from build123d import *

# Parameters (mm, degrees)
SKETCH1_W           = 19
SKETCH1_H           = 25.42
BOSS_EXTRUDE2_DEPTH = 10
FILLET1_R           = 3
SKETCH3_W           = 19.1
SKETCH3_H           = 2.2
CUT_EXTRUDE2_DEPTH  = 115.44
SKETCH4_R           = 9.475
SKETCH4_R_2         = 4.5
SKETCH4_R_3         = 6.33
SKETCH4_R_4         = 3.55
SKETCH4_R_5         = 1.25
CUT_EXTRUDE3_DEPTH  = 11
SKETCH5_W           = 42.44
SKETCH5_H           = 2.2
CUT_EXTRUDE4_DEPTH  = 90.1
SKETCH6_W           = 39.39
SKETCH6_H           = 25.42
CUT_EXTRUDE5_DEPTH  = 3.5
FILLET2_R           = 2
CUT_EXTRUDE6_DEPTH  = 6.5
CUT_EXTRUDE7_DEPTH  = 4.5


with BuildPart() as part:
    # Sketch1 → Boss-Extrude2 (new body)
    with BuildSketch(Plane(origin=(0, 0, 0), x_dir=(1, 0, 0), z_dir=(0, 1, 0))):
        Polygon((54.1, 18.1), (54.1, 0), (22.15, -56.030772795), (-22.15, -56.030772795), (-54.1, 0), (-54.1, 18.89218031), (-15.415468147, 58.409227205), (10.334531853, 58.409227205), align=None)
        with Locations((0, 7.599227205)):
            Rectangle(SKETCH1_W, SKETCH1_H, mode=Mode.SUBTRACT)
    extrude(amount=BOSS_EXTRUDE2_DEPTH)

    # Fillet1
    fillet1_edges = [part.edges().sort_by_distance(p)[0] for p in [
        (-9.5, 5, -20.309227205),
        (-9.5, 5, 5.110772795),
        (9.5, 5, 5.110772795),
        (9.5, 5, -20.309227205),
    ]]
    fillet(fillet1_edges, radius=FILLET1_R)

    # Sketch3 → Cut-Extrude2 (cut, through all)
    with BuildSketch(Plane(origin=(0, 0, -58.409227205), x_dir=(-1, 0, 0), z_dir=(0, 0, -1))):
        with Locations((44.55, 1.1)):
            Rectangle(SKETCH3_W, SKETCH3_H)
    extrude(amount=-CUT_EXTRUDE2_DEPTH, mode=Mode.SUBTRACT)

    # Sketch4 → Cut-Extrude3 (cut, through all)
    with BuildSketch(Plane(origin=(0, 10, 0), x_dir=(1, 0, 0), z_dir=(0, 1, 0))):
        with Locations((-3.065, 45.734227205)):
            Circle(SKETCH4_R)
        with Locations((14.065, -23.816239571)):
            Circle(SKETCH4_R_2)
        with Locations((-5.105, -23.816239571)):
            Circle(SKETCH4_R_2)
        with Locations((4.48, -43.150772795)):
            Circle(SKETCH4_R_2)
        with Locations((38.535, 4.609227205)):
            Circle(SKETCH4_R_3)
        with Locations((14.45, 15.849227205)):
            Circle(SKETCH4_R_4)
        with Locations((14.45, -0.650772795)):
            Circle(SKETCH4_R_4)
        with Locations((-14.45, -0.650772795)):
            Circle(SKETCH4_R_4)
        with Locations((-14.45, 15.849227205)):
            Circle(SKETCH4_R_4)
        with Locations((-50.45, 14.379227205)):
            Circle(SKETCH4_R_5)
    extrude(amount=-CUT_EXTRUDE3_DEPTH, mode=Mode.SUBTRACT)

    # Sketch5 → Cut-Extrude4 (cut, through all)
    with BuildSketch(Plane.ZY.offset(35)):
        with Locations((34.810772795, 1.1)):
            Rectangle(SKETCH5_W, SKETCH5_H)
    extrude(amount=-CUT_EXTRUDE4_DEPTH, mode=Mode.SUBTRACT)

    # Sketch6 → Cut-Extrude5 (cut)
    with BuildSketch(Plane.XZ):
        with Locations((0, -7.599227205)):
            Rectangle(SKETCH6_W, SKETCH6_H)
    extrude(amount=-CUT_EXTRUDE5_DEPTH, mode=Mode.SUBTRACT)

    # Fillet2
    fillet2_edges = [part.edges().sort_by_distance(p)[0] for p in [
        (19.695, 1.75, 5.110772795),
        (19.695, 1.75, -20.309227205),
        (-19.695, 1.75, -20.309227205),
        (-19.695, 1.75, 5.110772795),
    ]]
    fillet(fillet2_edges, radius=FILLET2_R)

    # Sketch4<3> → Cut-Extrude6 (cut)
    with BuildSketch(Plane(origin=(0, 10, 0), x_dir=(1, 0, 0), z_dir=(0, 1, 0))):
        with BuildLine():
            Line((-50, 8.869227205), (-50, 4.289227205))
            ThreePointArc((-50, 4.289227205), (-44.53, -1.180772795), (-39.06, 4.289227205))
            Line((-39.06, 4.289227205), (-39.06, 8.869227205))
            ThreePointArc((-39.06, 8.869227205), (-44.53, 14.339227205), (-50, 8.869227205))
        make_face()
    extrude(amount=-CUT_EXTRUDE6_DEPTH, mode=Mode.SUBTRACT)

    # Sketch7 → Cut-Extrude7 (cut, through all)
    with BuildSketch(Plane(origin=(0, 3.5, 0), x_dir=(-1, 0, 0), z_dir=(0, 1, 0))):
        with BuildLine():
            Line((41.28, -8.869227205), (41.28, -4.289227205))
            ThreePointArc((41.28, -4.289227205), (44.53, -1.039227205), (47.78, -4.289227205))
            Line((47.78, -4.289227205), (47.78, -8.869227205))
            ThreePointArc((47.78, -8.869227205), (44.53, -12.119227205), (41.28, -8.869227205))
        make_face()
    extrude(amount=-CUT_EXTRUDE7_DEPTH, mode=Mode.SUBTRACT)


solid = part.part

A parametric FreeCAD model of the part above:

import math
import FreeCAD as App
import Part
import Sketcher

V = App.Vector
Q = App.Units.Quantity


def edges_at(feature, points):
    """Names of the edges that pass closest to the given points."""
    edges = feature.Shape.Edges
    near = lambda p: min(range(len(edges)), key=lambda i: edges[i].distToShape(Part.Vertex(*p))[0])
    return sorted({f"Edge{near(p) + 1}" for p in points})


def add_polygon(sketch, points):
    """Adds a closed chain of lines whose ends are joined by coincident constraints."""
    first, n = sketch.GeometryCount, len(points)
    for a, b in zip(points, points[1:] + points[:1]):
        sketch.addGeometry(Part.LineSegment(App.Vector(*a, 0), App.Vector(*b, 0)), False)
    for i in range(n):
        sketch.addConstraint(Sketcher.Constraint("Coincident", first + i, 2, first + (i + 1) % n, 1))

doc = App.newDocument("Part")
params = doc.addObject("Spreadsheet::Sheet", "Params")
for row, (alias, value) in enumerate([
    ("sketch1_width", "19 mm"),
    ("sketch1_width2", "44.3 mm"),
    ("sketch1_height", "18.1 mm"),
    ("sketch1_length", "59.5 mm"),
    ("sketch1_length2", "55.3 mm"),
    ("pad1_length", "10 mm"),
    ("fillet_radius", "3 mm"),
    ("sketch2_width", "19.1 mm"),
    ("sketch2_height", "2.2 mm"),
    ("sketch3_diameter", "9 mm"),
    ("sketch3_diameter2", "7.1 mm"),
    ("sketch3_diameter3", "2.5 mm"),
    ("sketch3_diameter4", "18.95 mm"),
    ("sketch3_diameter5", "12.66 mm"),
    ("sketch4_width", "2.2 mm"),
    ("sketch4_height", "42.44 mm"),
    ("sketch5_width", "39.39 mm"),
    ("sketch5_height", "25.42 mm"),
    ("pocket4_length", "3.5 mm"),
    ("fillet2_radius", "2 mm"),
    ("sketch6_radius", "5.47 mm"),
    ("sketch6_height", "4.58 mm"),
    ("pocket5_length", "6.5 mm"),
    ("sketch7_radius", "3.25 mm"),
    ("sketch7_height", "4.58 mm"),
], start=1):
    params.set(f"A{row}", alias)
    params.set(f"B{row}", "=" + value)
    params.setAlias(f"B{row}", alias)

body = doc.addObject("PartDesign::Body", "Body")

# Sketch on XZ plane
sketch1 = doc.addObject("Sketcher::SketchObject", "Sketch")
body.addObject(sketch1)
sketch1.AttachmentSupport = (doc.XZ_Plane, [""])
sketch1.MapMode = "FlatFace"
add_polygon(sketch1, [(54, 0), (54, -18), (10, -58), (-15, -58), (-54, -19), (-54, 0), (-22, 56), (22, 56)])  # lines 0-7
add_polygon(sketch1, [(-10, 5), (-10, -20), (10, -20), (10, 5)])  # lines 8-11
sketch1.addConstraint(Sketcher.Constraint("Vertical", 0))
sketch1.addConstraint(Sketcher.Constraint("Horizontal", 2))
sketch1.addConstraint(Sketcher.Constraint("Vertical", 4))
sketch1.addConstraint(Sketcher.Constraint("Horizontal", 6))
sketch1.addConstraint(Sketcher.Constraint("Vertical", 8))
sketch1.addConstraint(Sketcher.Constraint("Horizontal", 9))
sketch1.addConstraint(Sketcher.Constraint("Vertical", 10))
sketch1.addConstraint(Sketcher.Constraint("Horizontal", 11))
sketch1.addConstraint(Sketcher.Constraint("Symmetric", 4, 2, 7, 2, -1, 1))
sketch1.addConstraint(Sketcher.Constraint("PointOnObject", 4, 2, -1))
sketch1.addConstraint(Sketcher.Constraint("Equal", 5, 7))
sketch1.addConstraint(Sketcher.Constraint("DistanceX", 9, 1, 9, 2, Q("19 mm")))
sketch1.addConstraint(Sketcher.Constraint("DistanceX", 6, 1, 6, 2, Q("44.3 mm")))
sketch1.addConstraint(Sketcher.Constraint("DistanceY", 0, 2, 0, 1, Q("18.1 mm")))
sketch1.addConstraint(Sketcher.Constraint("Distance", 1, Q("59.5 mm")))
sketch1.addConstraint(Sketcher.Constraint("Distance", 3, Q("55.3 mm")))
sketch1.addConstraint(Sketcher.Constraint("Distance", 5, Q("64.5 mm")))
sketch1.addConstraint(Sketcher.Constraint("DistanceX", 2, 2, 2, 1, Q("25.75 mm")))
sketch1.addConstraint(Sketcher.Constraint("DistanceY", 8, 2, 8, 1, Q("25.42 mm")))
sketch1.addConstraint(Sketcher.Constraint("DistanceX", -1, 1, 0, 2, Q("54.1 mm")))
sketch1.addConstraint(Sketcher.Constraint("DistanceX", 8, 2, -1, 1, Q("9.5 mm")))
sketch1.addConstraint(Sketcher.Constraint("DistanceY", 2, 2, 8, 2, Q("38.1 mm")))
sketch1.addConstraint(Sketcher.Constraint("DistanceY", 2, 2, 5, 2, Q("114.44 mm")))
sketch1.setExpression("Constraints[23]", "Params.sketch1_width")
sketch1.setExpression("Constraints[24]", "Params.sketch1_width2")
sketch1.setExpression("Constraints[25]", "Params.sketch1_height")
sketch1.setExpression("Constraints[26]", "Params.sketch1_length")
sketch1.setExpression("Constraints[27]", "Params.sketch1_length2")
pad1 = doc.addObject("PartDesign::Pad", "Pad")
body.addObject(pad1)
pad1.Profile = sketch1
pad1.setExpression("Length", "Params.pad1_length")
pad1.Reversed = True
doc.recompute()

fillet = doc.addObject("PartDesign::Fillet", "Fillet")
body.addObject(fillet)
fillet.Base = (pad1, edges_at(pad1, [
    (-9.5, 5, -20.309),
    (-9.5, 5, 5.111),
    (9.5, 5, 5.111),
    (9.5, 5, -20.309),
]))
fillet.setExpression("Radius", "Params.fillet_radius")

# Sketch on XY plane
sketch2 = doc.addObject("Sketcher::SketchObject", "Sketch001")
body.addObject(sketch2)
sketch2.AttachmentSupport = (doc.XY_Plane, [""])
sketch2.MapMode = "FlatFace"
sketch2.AttachmentOffset = App.Placement(V(0, 0, -58.409227), App.Rotation())
add_polygon(sketch2, [(-35, 2.2), (-35, 0), (-54.1, 0), (-54.1, 2.2)])  # lines 0-3
sketch2.addConstraint(Sketcher.Constraint("Vertical", 0))
sketch2.addConstraint(Sketcher.Constraint("Horizontal", 1))
sketch2.addConstraint(Sketcher.Constraint("Vertical", 2))
sketch2.addConstraint(Sketcher.Constraint("Horizontal", 3))
sketch2.addConstraint(Sketcher.Constraint("PointOnObject", 0, 2, -1))
sketch2.addConstraint(Sketcher.Constraint("DistanceX", 1, 2, 1, 1, Q("19.1 mm")))
sketch2.addConstraint(Sketcher.Constraint("DistanceY", 0, 2, 0, 1, Q("2.2 mm")))
sketch2.addConstraint(Sketcher.Constraint("DistanceX", 0, 2, -1, 1, Q("35 mm")))
sketch2.setExpression("Constraints[9]", "Params.sketch2_width")
sketch2.setExpression("Constraints[10]", "Params.sketch2_height")
pocket1 = doc.addObject("PartDesign::Pocket", "Pocket")
body.addObject(pocket1)
pocket1.Profile = sketch2
pocket1.Type = "ThroughAll"
pocket1.Reversed = True

# Sketch on XZ plane
sketch3 = doc.addObject("Sketcher::SketchObject", "Sketch002")
body.addObject(sketch3)
sketch3.AttachmentSupport = (doc.XZ_Plane, [""])
sketch3.MapMode = "FlatFace"
sketch3.AttachmentOffset = App.Placement(V(0, 0, -10), App.Rotation())
sketch3.addGeometry(Part.Circle(V(-3.1, -45.7, 0), V(0, 0, 1), 9.5), False)
sketch3.addGeometry(Part.Circle(V(14.1, 23.8, 0), V(0, 0, 1), 4.5), False)
sketch3.addGeometry(Part.Circle(V(-5.1, 23.8, 0), V(0, 0, 1), 4.5), False)
sketch3.addGeometry(Part.Circle(V(4.5, 43.2, 0), V(0, 0, 1), 4.5), False)
sketch3.addGeometry(Part.Circle(V(38.5, -4.6, 0), V(0, 0, 1), 6.3), False)
sketch3.addGeometry(Part.Circle(V(14.4, -15.8, 0), V(0, 0, 1), 3.5), False)
sketch3.addGeometry(Part.Circle(V(14.4, 0.7, 0), V(0, 0, 1), 3.5), False)
sketch3.addGeometry(Part.Circle(V(-14.4, 0.7, 0), V(0, 0, 1), 3.5), False)
sketch3.addGeometry(Part.Circle(V(-14.4, -15.8, 0), V(0, 0, 1), 3.5), False)
sketch3.addGeometry(Part.Circle(V(-50.5, -14.4, 0), V(0, 0, 1), 1.2), False)
sketch3.addConstraint(Sketcher.Constraint("Equal", 1, 2))
sketch3.addConstraint(Sketcher.Constraint("Equal", 2, 3))
sketch3.addConstraint(Sketcher.Constraint("Equal", 5, 6))
sketch3.addConstraint(Sketcher.Constraint("Equal", 6, 7))
sketch3.addConstraint(Sketcher.Constraint("Equal", 7, 8))
sketch3.addConstraint(Sketcher.Constraint("Symmetric", 6, 3, 7, 3, -2))
sketch3.addConstraint(Sketcher.Constraint("Symmetric", 5, 3, 8, 3, -2))
sketch3.addConstraint(Sketcher.Constraint("Horizontal", 1, 3, 2, 3))
sketch3.addConstraint(Sketcher.Constraint("Vertical", 5, 3, 6, 3))
sketch3.addConstraint(Sketcher.Constraint("Diameter", 1, Q("9 mm")))
sketch3.addConstraint(Sketcher.Constraint("Diameter", 5, Q("7.1 mm")))
sketch3.addConstraint(Sketcher.Constraint("Diameter", 9, Q("2.5 mm")))
sketch3.addConstraint(Sketcher.Constraint("Diameter", 0, Q("18.95 mm")))
sketch3.addConstraint(Sketcher.Constraint("Diameter", 4, Q("12.66 mm")))
sketch3.addConstraint(Sketcher.Constraint("DistanceY", 5, 3, 3, 3, Q("59 mm")))
sketch3.addConstraint(Sketcher.Constraint("DistanceX", 9, 3, 8, 3, Q("36 mm")))
sketch3.addConstraint(Sketcher.Constraint("DistanceX", 0, 3, 4, 3, Q("41.6 mm")))
sketch3.addConstraint(Sketcher.Constraint("DistanceY", 5, 3, 6, 3, Q("16.5 mm")))
sketch3.addConstraint(Sketcher.Constraint("DistanceX", 7, 3, 6, 3, Q("28.9 mm")))
sketch3.addConstraint(Sketcher.Constraint("DistanceX", -1, 1, 3, 3, Q("4.48 mm")))
sketch3.addConstraint(Sketcher.Constraint("DistanceX", 0, 3, 1, 3, Q("17.13 mm")))
sketch3.addConstraint(Sketcher.Constraint("DistanceX", 2, 3, 1, 3, Q("19.17 mm")))
sketch3.addConstraint(Sketcher.Constraint("DistanceY", 4, 3, 3, 3, Q("47.76 mm")))
sketch3.addConstraint(Sketcher.Constraint("DistanceY", 8, 3, 9, 3, Q("1.47 mm")))
sketch3.addConstraint(Sketcher.Constraint("DistanceX", 0, 3, -1, 1, Q("3.065 mm")))
sketch3.addConstraint(Sketcher.Constraint("DistanceY", 0, 3, 3, 3, Q("88.885 mm")))
sketch3.addConstraint(Sketcher.Constraint("DistanceY", -1, 1, 1, 3, Q("23.81624 mm")))
sketch3.addConstraint(Sketcher.Constraint("DistanceY", 0, 3, -1, 1, Q("45.734227 mm")))
sketch3.setExpression("Constraints[9]", "Params.sketch3_diameter")
sketch3.setExpression("Constraints[10]", "Params.sketch3_diameter2")
sketch3.setExpression("Constraints[11]", "Params.sketch3_diameter3")
sketch3.setExpression("Constraints[12]", "Params.sketch3_diameter4")
sketch3.setExpression("Constraints[13]", "Params.sketch3_diameter5")
pocket2 = doc.addObject("PartDesign::Pocket", "Pocket001")
body.addObject(pocket2)
pocket2.Profile = sketch3
pocket2.Type = "ThroughAll"
pocket2.Reversed = True

# Sketch on YZ plane
sketch4 = doc.addObject("Sketcher::SketchObject", "Sketch003")
body.addObject(sketch4)
sketch4.AttachmentSupport = (doc.YZ_Plane, [""])
sketch4.MapMode = "FlatFace"
sketch4.AttachmentOffset = App.Placement(V(0, 0, -35), App.Rotation())
add_polygon(sketch4, [(2.2, 13.6), (0, 13.6), (0, 56), (2.2, 56)])  # lines 0-3
sketch4.addConstraint(Sketcher.Constraint("Horizontal", 0))
sketch4.addConstraint(Sketcher.Constraint("Vertical", 1))
sketch4.addConstraint(Sketcher.Constraint("Horizontal", 2))
sketch4.addConstraint(Sketcher.Constraint("Vertical", 3))
sketch4.addConstraint(Sketcher.Constraint("PointOnObject", 0, 2, -2))
sketch4.addConstraint(Sketcher.Constraint("DistanceX", 0, 2, 0, 1, Q("2.2 mm")))
sketch4.addConstraint(Sketcher.Constraint("DistanceY", 1, 1, 1, 2, Q("42.44 mm")))
sketch4.addConstraint(Sketcher.Constraint("DistanceY", -1, 1, 0, 2, Q("13.590773 mm")))
sketch4.setExpression("Constraints[9]", "Params.sketch4_width")
sketch4.setExpression("Constraints[10]", "Params.sketch4_height")
pocket3 = doc.addObject("PartDesign::Pocket", "Pocket002")
body.addObject(pocket3)
pocket3.Profile = sketch4
pocket3.Type = "ThroughAll"
pocket3.Reversed = True

# Sketch on XZ plane
sketch5 = doc.addObject("Sketcher::SketchObject", "Sketch004")
body.addObject(sketch5)
sketch5.AttachmentSupport = (doc.XZ_Plane, [""])
sketch5.MapMode = "FlatFace"
add_polygon(sketch5, [(-20, 5), (-20, -20), (20, -20), (20, 5)])  # lines 0-3
sketch5.addConstraint(Sketcher.Constraint("Vertical", 0))
sketch5.addConstraint(Sketcher.Constraint("Horizontal", 1))
sketch5.addConstraint(Sketcher.Constraint("Vertical", 2))
sketch5.addConstraint(Sketcher.Constraint("Horizontal", 3))
sketch5.addConstraint(Sketcher.Constraint("DistanceX", 1, 1, 1, 2, Q("39.39 mm")))
sketch5.addConstraint(Sketcher.Constraint("DistanceY", 0, 2, 0, 1, Q("25.42 mm")))
sketch5.addConstraint(Sketcher.Constraint("DistanceX", 0, 2, -1, 1, Q("19.695 mm")))
sketch5.addConstraint(Sketcher.Constraint("DistanceY", 0, 2, -1, 1, Q("20.309227 mm")))
sketch5.setExpression("Constraints[8]", "Params.sketch5_width")
sketch5.setExpression("Constraints[9]", "Params.sketch5_height")
pocket4 = doc.addObject("PartDesign::Pocket", "Pocket003")
body.addObject(pocket4)
pocket4.Profile = sketch5
pocket4.setExpression("Length", "Params.pocket4_length")
doc.recompute()

fillet2 = doc.addObject("PartDesign::Fillet", "Fillet001")
body.addObject(fillet2)
fillet2.Base = (pocket4, edges_at(pocket4, [
    (19.695, 1.75, 5.111),
    (19.695, 1.75, -20.309),
    (-19.695, 1.75, -20.309),
    (-19.695, 1.75, 5.111),
]))
fillet2.setExpression("Radius", "Params.fillet2_radius")

# Sketch on XZ plane
sketch6 = doc.addObject("Sketcher::SketchObject", "Sketch005")
body.addObject(sketch6)
sketch6.AttachmentSupport = (doc.XZ_Plane, [""])
sketch6.MapMode = "FlatFace"
sketch6.AttachmentOffset = App.Placement(V(0, 0, -10), App.Rotation())
sketch6.addGeometry(Part.LineSegment(V(-50, -8.9, 0), V(-50, -4.3, 0)), False)
sketch6.addGeometry(Part.ArcOfCircle(Part.Circle(V(-44.5, -4.3, 0), V(0, 0, 1), 5.5), math.radians(0), math.radians(180)), False)
sketch6.addGeometry(Part.LineSegment(V(-39.1, -4.3, 0), V(-39.1, -8.9, 0)), False)
sketch6.addGeometry(Part.ArcOfCircle(Part.Circle(V(-44.5, -8.9, 0), V(0, 0, 1), 5.5), math.radians(180), math.radians(360)), False)
sketch6.addConstraint(Sketcher.Constraint("Tangent", 0, 2, 1, 2))
sketch6.addConstraint(Sketcher.Constraint("Tangent", 1, 1, 2, 1))
sketch6.addConstraint(Sketcher.Constraint("Tangent", 2, 2, 3, 2))
sketch6.addConstraint(Sketcher.Constraint("Tangent", 3, 1, 0, 1))
sketch6.addConstraint(Sketcher.Constraint("Vertical", 0))
sketch6.addConstraint(Sketcher.Constraint("Vertical", 2))
sketch6.addConstraint(Sketcher.Constraint("Radius", 1, Q("5.47 mm")))
sketch6.addConstraint(Sketcher.Constraint("DistanceX", 0, 2, -1, 1, Q("50 mm")))
sketch6.addConstraint(Sketcher.Constraint("DistanceY", 0, 1, 0, 2, Q("4.58 mm")))
sketch6.addConstraint(Sketcher.Constraint("DistanceY", 1, 3, -1, 1, Q("4.289227 mm")))
sketch6.setExpression("Constraints[6]", "Params.sketch6_radius")
sketch6.setExpression("Constraints[8]", "Params.sketch6_height")
pocket5 = doc.addObject("PartDesign::Pocket", "Pocket004")
body.addObject(pocket5)
pocket5.Profile = sketch6
pocket5.setExpression("Length", "Params.pocket5_length")
pocket5.Reversed = True

# Sketch on XZ plane
sketch7 = doc.addObject("Sketcher::SketchObject", "Sketch006")
body.addObject(sketch7)
sketch7.AttachmentSupport = (doc.XZ_Plane, [""])
sketch7.MapMode = "FlatFace"
sketch7.AttachmentOffset = App.Placement(V(0, 0, -3.5), App.Rotation())
sketch7.addGeometry(Part.LineSegment(V(-41.3, -4.3, 0), V(-41.3, -8.9, 0)), False)
sketch7.addGeometry(Part.ArcOfCircle(Part.Circle(V(-44.5, -8.9, 0), V(0, 0, 1), 3.2), math.radians(180), math.radians(360)), False)
sketch7.addGeometry(Part.LineSegment(V(-47.8, -8.9, 0), V(-47.8, -4.3, 0)), False)
sketch7.addGeometry(Part.ArcOfCircle(Part.Circle(V(-44.5, -4.3, 0), V(0, 0, 1), 3.2), math.radians(0), math.radians(180)), False)
sketch7.addConstraint(Sketcher.Constraint("Tangent", 0, 2, 1, 2))
sketch7.addConstraint(Sketcher.Constraint("Tangent", 1, 1, 2, 1))
sketch7.addConstraint(Sketcher.Constraint("Tangent", 2, 2, 3, 2))
sketch7.addConstraint(Sketcher.Constraint("Tangent", 3, 1, 0, 1))
sketch7.addConstraint(Sketcher.Constraint("Vertical", 0))
sketch7.addConstraint(Sketcher.Constraint("Vertical", 2))
sketch7.addConstraint(Sketcher.Constraint("Radius", 1, Q("3.25 mm")))
sketch7.addConstraint(Sketcher.Constraint("DistanceY", 0, 2, 0, 1, Q("4.58 mm")))
sketch7.addConstraint(Sketcher.Constraint("DistanceX", 1, 3, -1, 1, Q("44.53 mm")))
sketch7.addConstraint(Sketcher.Constraint("DistanceY", 1, 3, -1, 1, Q("8.869227 mm")))
sketch7.setExpression("Constraints[6]", "Params.sketch7_radius")
sketch7.setExpression("Constraints[7]", "Params.sketch7_height")
pocket6 = doc.addObject("PartDesign::Pocket", "Pocket005")
body.addObject(pocket6)
pocket6.Profile = sketch7
pocket6.Type = "ThroughAll"
pocket6.Reversed = True

doc.recompute()
